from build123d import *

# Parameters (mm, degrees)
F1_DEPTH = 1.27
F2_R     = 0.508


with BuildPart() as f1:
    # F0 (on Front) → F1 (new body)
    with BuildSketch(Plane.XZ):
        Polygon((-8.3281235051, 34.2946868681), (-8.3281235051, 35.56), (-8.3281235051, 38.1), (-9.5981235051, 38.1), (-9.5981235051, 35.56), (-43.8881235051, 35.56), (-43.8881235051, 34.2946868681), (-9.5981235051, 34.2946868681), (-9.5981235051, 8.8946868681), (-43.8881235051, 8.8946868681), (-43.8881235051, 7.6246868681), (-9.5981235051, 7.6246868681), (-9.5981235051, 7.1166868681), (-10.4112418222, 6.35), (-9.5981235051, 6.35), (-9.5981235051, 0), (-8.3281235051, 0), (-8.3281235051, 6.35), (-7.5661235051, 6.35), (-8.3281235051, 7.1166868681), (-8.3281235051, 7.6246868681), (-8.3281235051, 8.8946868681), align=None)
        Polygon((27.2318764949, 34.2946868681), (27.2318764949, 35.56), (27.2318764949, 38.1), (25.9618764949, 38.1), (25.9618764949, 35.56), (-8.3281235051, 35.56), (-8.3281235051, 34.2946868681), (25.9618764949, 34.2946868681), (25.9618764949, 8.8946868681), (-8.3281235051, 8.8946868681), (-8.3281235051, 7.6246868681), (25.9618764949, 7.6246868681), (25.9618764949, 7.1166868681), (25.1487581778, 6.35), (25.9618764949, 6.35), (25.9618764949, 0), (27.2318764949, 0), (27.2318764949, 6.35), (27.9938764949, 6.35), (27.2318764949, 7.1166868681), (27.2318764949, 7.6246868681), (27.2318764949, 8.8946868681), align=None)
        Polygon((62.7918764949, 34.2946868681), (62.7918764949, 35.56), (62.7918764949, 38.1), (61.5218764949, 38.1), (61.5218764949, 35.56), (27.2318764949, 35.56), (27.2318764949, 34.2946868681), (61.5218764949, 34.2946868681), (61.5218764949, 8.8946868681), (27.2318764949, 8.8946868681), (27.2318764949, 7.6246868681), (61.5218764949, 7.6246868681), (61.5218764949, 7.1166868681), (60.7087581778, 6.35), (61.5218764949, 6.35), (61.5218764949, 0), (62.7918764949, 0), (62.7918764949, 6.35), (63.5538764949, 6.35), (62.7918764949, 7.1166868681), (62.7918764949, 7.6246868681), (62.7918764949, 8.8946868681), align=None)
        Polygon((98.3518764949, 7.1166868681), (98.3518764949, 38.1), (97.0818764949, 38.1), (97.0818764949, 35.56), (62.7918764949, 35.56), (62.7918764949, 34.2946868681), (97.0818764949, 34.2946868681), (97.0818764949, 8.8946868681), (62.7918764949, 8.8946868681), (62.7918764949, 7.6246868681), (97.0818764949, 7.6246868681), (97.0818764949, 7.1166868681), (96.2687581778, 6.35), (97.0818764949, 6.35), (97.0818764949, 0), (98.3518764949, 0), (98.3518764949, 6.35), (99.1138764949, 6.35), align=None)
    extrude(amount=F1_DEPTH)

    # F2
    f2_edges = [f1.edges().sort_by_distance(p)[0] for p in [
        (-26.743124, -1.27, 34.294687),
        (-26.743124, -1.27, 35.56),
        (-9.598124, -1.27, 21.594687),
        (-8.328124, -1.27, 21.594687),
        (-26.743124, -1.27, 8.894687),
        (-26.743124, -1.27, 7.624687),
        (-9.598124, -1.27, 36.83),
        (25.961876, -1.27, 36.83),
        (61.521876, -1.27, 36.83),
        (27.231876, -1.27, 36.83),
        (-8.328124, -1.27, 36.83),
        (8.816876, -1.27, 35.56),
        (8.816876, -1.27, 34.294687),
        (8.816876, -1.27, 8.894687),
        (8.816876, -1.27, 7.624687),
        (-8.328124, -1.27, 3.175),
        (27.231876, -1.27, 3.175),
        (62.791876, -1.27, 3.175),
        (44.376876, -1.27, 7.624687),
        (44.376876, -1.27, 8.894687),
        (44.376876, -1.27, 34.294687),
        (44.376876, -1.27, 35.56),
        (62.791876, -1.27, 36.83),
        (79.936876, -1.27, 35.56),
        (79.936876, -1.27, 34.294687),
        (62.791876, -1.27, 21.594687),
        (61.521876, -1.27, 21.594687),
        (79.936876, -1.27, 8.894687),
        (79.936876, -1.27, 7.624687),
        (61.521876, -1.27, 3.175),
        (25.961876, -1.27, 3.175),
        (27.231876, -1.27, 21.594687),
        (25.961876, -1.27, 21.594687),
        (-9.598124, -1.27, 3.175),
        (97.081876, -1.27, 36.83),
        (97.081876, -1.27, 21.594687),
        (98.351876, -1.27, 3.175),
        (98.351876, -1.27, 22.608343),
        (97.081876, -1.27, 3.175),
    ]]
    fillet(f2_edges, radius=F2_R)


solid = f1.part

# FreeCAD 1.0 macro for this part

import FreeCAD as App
import Part
import Sketcher
Q = App.Units.Quantity


def edges_at(feature, points):
    """Names of the edges that pass closest to the given points."""
    edges = feature.Shape.Edges
    near = lambda p: min(range(len(edges)), key=lambda i: edges[i].distToShape(Part.Vertex(*p))[0])
    return sorted({f"Edge{near(p) + 1}" for p in points})

doc = App.newDocument("Part")
body = doc.addObject("PartDesign::Body", "Body")

# Sketch on XZ plane
sketch1 = body.newObject("Sketcher::SketchObject", "Sketch")
sketch1.AttachmentSupport = (doc.getObject("XZ_Plane"), [""])
sketch1.MapMode = "FlatFace"
sketch1.addGeometry(Part.LineSegment(App.Vector(-8.3, 38.1, 0), App.Vector(-9.6, 38.1, 0)), False)
sketch1.addGeometry(Part.LineSegment(App.Vector(-9.6, 38.1, 0), App.Vector(-9.6, 35.6, 0)), False)
sketch1.addGeometry(Part.LineSegment(App.Vector(-9.6, 35.6, 0), App.Vector(-43.9, 35.6, 0)), False)
sketch1.addGeometry(Part.LineSegment(App.Vector(-43.9, 35.6, 0), App.Vector(-43.9, 34.3, 0)), False)
sketch1.addGeometry(Part.LineSegment(App.Vector(-43.9, 34.3, 0), App.Vector(-9.6, 34.3, 0)), False)
sketch1.addGeometry(Part.LineSegment(App.Vector(-9.6, 34.3, 0), App.Vector(-9.6, 8.9, 0)), False)
sketch1.addGeometry(Part.LineSegment(App.Vector(-9.6, 8.9, 0), App.Vector(-43.9, 8.9, 0)), False)
sketch1.addGeometry(Part.LineSegment(App.Vector(-43.9, 8.9, 0), App.Vector(-43.9, 7.6, 0)), False)
sketch1.addGeometry(Part.LineSegment(App.Vector(-43.9, 7.6, 0), App.Vector(-9.6, 7.6, 0)), False)
sketch1.addGeometry(Part.LineSegment(App.Vector(-9.6, 7.6, 0), App.Vector(-9.6, 7.1, 0)), False)
sketch1.addGeometry(Part.LineSegment(App.Vector(-9.6, 7.1, 0), App.Vector(-10.4, 6.3, 0)), False)
sketch1.addGeometry(Part.LineSegment(App.Vector(-10.4, 6.3, 0), App.Vector(-9.6, 6.3, 0)), False)
sketch1.addGeometry(Part.LineSegment(App.Vector(-9.6, 6.3, 0), App.Vector(-9.6, 0, 0)), False)
sketch1.addGeometry(Part.LineSegment(App.Vector(-9.6, 0, 0), App.Vector(-8.3, 0, 0)), False)
sketch1.addGeometry(Part.LineSegment(App.Vector(-8.3, 0, 0), App.Vector(-8.3, 6.3, 0)), False)
sketch1.addGeometry(Part.LineSegment(App.Vector(-8.3, 6.3, 0), App.Vector(-7.6, 6.3, 0)), False)
sketch1.addGeometry(Part.LineSegment(App.Vector(-7.6, 6.3, 0), App.Vector(-8.3, 7.1, 0)), False)
sketch1.addGeometry(Part.LineSegment(App.Vector(-8.3, 7.1, 0), App.Vector(-8.3, 7.6, 0)), False)
sketch1.addGeometry(Part.LineSegment(App.Vector(-8.3, 7.6, 0), App.Vector(26, 7.6, 0)), False)
sketch1.addGeometry(Part.LineSegment(App.Vector(26, 7.6, 0), App.Vector(26, 7.1, 0)), False)
sketch1.addGeometry(Part.LineSegment(App.Vector(26, 7.1, 0), App.Vector(25.1, 6.3, 0)), False)
sketch1.addGeometry(Part.LineSegment(App.Vector(25.1, 6.3, 0), App.Vector(26, 6.3, 0)), False)
sketch1.addGeometry(Part.LineSegment(App.Vector(26, 6.3, 0), App.Vector(26, 0, 0)), False)
sketch1.addGeometry(Part.LineSegment(App.Vector(26, 0, 0), App.Vector(27.2, 0, 0)), False)
sketch1.addGeometry(Part.LineSegment(App.Vector(27.2, 0, 0), App.Vector(27.2, 6.3, 0)), False)
sketch1.addGeometry(Part.LineSegment(App.Vector(27.2, 6.3, 0), App.Vector(28, 6.3, 0)), False)
sketch1.addGeometry(Part.LineSegment(App.Vector(28, 6.3, 0), App.Vector(27.2, 7.1, 0)), False)
sketch1.addGeometry(Part.LineSegment(App.Vector(27.2, 7.1, 0), App.Vector(27.2, 7.6, 0)), False)
sketch1.addGeometry(Part.LineSegment(App.Vector(27.2, 7.6, 0), App.Vector(61.5, 7.6, 0)), False)
sketch1.addGeometry(Part.LineSegment(App.Vector(61.5, 7.6, 0), App.Vector(61.5, 7.1, 0)), False)
sketch1.addGeometry(Part.LineSegment(App.Vector(61.5, 7.1, 0), App.Vector(60.7, 6.3, 0)), False)
sketch1.addGeometry(Part.LineSegment(App.Vector(60.7, 6.3, 0), App.Vector(61.5, 6.3, 0)), False)
sketch1.addGeometry(Part.LineSegment(App.Vector(61.5, 6.3, 0), App.Vector(61.5, 0, 0)), False)
sketch1.addGeometry(Part.LineSegment(App.Vector(61.5, 0, 0), App.Vector(62.8, 0, 0)), False)
sketch1.addGeometry(Part.LineSegment(App.Vector(62.8, 0, 0), App.Vector(62.8, 6.3, 0)), False)
sketch1.addGeometry(Part.LineSegment(App.Vector(62.8, 6.3, 0), App.Vector(63.6, 6.3, 0)), False)
sketch1.addGeometry(Part.LineSegment(App.Vector(63.6, 6.3, 0), App.Vector(62.8, 7.1, 0)), False)
sketch1.addGeometry(Part.LineSegment(App.Vector(62.8, 7.1, 0), App.Vector(62.8, 7.6, 0)), False)
sketch1.addGeometry(Part.LineSegment(App.Vector(62.8, 7.6, 0), App.Vector(97.1, 7.6, 0)), False)
sketch1.addGeometry(Part.LineSegment(App.Vector(97.1, 7.6, 0), App.Vector(97.1, 7.1, 0)), False)
sketch1.addGeometry(Part.LineSegment(App.Vector(97.1, 7.1, 0), App.Vector(96.3, 6.3, 0)), False)
sketch1.addGeometry(Part.LineSegment(App.Vector(96.3, 6.3, 0), App.Vector(97.1, 6.3, 0)), False)
sketch1.addGeometry(Part.LineSegment(App.Vector(97.1, 6.3, 0), App.Vector(97.1, 0, 0)), False)
sketch1.addGeometry(Part.LineSegment(App.Vector(97.1, 0, 0), App.Vector(98.4, 0, 0)), False)
sketch1.addGeometry(Part.LineSegment(App.Vector(98.4, 0, 0), App.Vector(98.4, 6.3, 0)), False)
sketch1.addGeometry(Part.LineSegment(App.Vector(98.4, 6.3, 0), App.Vector(99.1, 6.3, 0)), False)
sketch1.addGeometry(Part.LineSegment(App.Vector(99.1, 6.3, 0), App.Vector(98.4, 7.1, 0)), False)
sketch1.addGeometry(Part.LineSegment(App.Vector(98.4, 7.1, 0), App.Vector(98.4, 38.1, 0)), False)
sketch1.addGeometry(Part.LineSegment(App.Vector(98.4, 38.1, 0), App.Vector(97.1, 38.1, 0)), False)
sketch1.addGeometry(Part.LineSegment(App.Vector(97.1, 38.1, 0), App.Vector(97.1, 35.6, 0)), False)
sketch1.addGeometry(Part.LineSegment(App.Vector(97.1, 35.6, 0), App.Vector(62.8, 35.6, 0)), False)
sketch1.addGeometry(Part.LineSegment(App.Vector(62.8, 35.6, 0), App.Vector(62.8, 38.1, 0)), False)
sketch1.addGeometry(Part.LineSegment(App.Vector(62.8, 38.1, 0), App.Vector(61.5, 38.1, 0)), False)
sketch1.addGeometry(Part.LineSegment(App.Vector(61.5, 38.1, 0), App.Vector(61.5, 35.6, 0)), False)
sketch1.addGeometry(Part.LineSegment(App.Vector(61.5, 35.6, 0), App.Vector(27.2, 35.6, 0)), False)
sketch1.addGeometry(Part.LineSegment(App.Vector(27.2, 35.6, 0), App.Vector(27.2, 38.1, 0)), False)
sketch1.addGeometry(Part.LineSegment(App.Vector(27.2, 38.1, 0), App.Vector(26, 38.1, 0)), False)
sketch1.addGeometry(Part.LineSegment(App.Vector(26, 38.1, 0), App.Vector(26, 35.6, 0)), False)
sketch1.addGeometry(Part.LineSegment(App.Vector(26, 35.6, 0), App.Vector(-8.3, 35.6, 0)), False)
sketch1.addGeometry(Part.LineSegment(App.Vector(-8.3, 35.6, 0), App.Vector(-8.3, 38.1, 0)), False)
sketch1.addGeometry(Part.LineSegment(App.Vector(62.8, 8.9, 0), App.Vector(62.8, 34.3, 0)), False)
sketch1.addGeometry(Part.LineSegment(App.Vector(62.8, 34.3, 0), App.Vector(97.1, 34.3, 0)), False)
sketch1.addGeometry(Part.LineSegment(App.Vector(97.1, 34.3, 0), App.Vector(97.1, 8.9, 0)), False)
sketch1.addGeometry(Part.LineSegment(App.Vector(97.1, 8.9, 0), App.Vector(62.8, 8.9, 0)), False)
sketch1.addGeometry(Part.LineSegment(App.Vector(27.2, 8.9, 0), App.Vector(27.2, 34.3, 0)), False)
sketch1.addGeometry(Part.LineSegment(App.Vector(27.2, 34.3, 0), App.Vector(61.5, 34.3, 0)), False)
sketch1.addGeometry(Part.LineSegment(App.Vector(61.5, 34.3, 0), App.Vector(61.5, 8.9, 0)), False)
sketch1.addGeometry(Part.LineSegment(App.Vector(61.5, 8.9, 0), App.Vector(27.2, 8.9, 0)), False)
sketch1.addGeometry(Part.LineSegment(App.Vector(-8.3, 8.9, 0), App.Vector(-8.3, 34.3, 0)), False)
sketch1.addGeometry(Part.LineSegment(App.Vector(-8.3, 34.3, 0), App.Vector(26, 34.3, 0)), False)
sketch1.addGeometry(Part.LineSegment(App.Vector(26, 34.3, 0), App.Vector(26, 8.9, 0)), False)
sketch1.addGeometry(Part.LineSegment(App.Vector(26, 8.9, 0), App.Vector(-8.3, 8.9, 0)), False)
sketch1.addConstraint(Sketcher.Constraint("Coincident", 0, 2, 1, 1))
sketch1.addConstraint(Sketcher.Constraint("Coincident", 1, 2, 2, 1))
sketch1.addConstraint(Sketcher.Constraint("Coincident", 2, 2, 3, 1))
sketch1.addConstraint(Sketcher.Constraint("Coincident", 3, 2, 4, 1))
sketch1.addConstraint(Sketcher.Constraint("Coincident", 4, 2, 5, 1))
sketch1.addConstraint(Sketcher.Constraint("Coincident", 5, 2, 6, 1))
sketch1.addConstraint(Sketcher.Constraint("Coincident", 6, 2, 7, 1))
sketch1.addConstraint(Sketcher.Constraint("Coincident", 7, 2, 8, 1))
sketch1.addConstraint(Sketcher.Constraint("Coincident", 8, 2, 9, 1))
sketch1.addConstraint(Sketcher.Constraint("Coincident", 9, 2, 10, 1))
sketch1.addConstraint(Sketcher.Constraint("Coincident", 10, 2, 11, 1))
sketch1.addConstraint(Sketcher.Constraint("Coincident", 11, 2, 12, 1))
sketch1.addConstraint(Sketcher.Constraint("Coincident", 12, 2, 13, 1))
sketch1.addConstraint(Sketcher.Constraint("Coincident", 13, 2, 14, 1))
sketch1.addConstraint(Sketcher.Constraint("Coincident", 14, 2, 15, 1))
sketch1.addConstraint(Sketcher.Constraint("Coincident", 15, 2, 16, 1))
sketch1.addConstraint(Sketcher.Constraint("Coincident", 16, 2, 17, 1))
sketch1.addConstraint(Sketcher.Constraint("Coincident", 17, 2, 18, 1))
sketch1.addConstraint(Sketcher.Constraint("Coincident", 18, 2, 19, 1))
sketch1.addConstraint(Sketcher.Constraint("Coincident", 19, 2, 20, 1))
sketch1.addConstraint(Sketcher.Constraint("Coincident", 20, 2, 21, 1))
sketch1.addConstraint(Sketcher.Constraint("Coincident", 21, 2, 22, 1))
sketch1.addConstraint(Sketcher.Constraint("Coincident", 22, 2, 23, 1))
sketch1.addConstraint(Sketcher.Constraint("Coincident", 23, 2, 24, 1))
sketch1.addConstraint(Sketcher.Constraint("Coincident", 24, 2, 25, 1))
sketch1.addConstraint(Sketcher.Constraint("Coincident", 25, 2, 26, 1))
sketch1.addConstraint(Sketcher.Constraint("Coincident", 26, 2, 27, 1))
sketch1.addConstraint(Sketcher.Constraint("Coincident", 27, 2, 28, 1))
sketch1.addConstraint(Sketcher.Constraint("Coincident", 28, 2, 29, 1))
sketch1.addConstraint(Sketcher.Constraint("Coincident", 29, 2, 30, 1))
sketch1.addConstraint(Sketcher.Constraint("Coincident", 30, 2, 31, 1))
sketch1.addConstraint(Sketcher.Constraint("Coincident", 31, 2, 32, 1))
sketch1.addConstraint(Sketcher.Constraint("Coincident", 32, 2, 33, 1))
sketch1.addConstraint(Sketcher.Constraint("Coincident", 33, 2, 34, 1))
sketch1.addConstraint(Sketcher.Constraint("Coincident", 34, 2, 35, 1))
sketch1.addConstraint(Sketcher.Constraint("Coincident", 35, 2, 36, 1))
sketch1.addConstraint(Sketcher.Constraint("Coincident", 36, 2, 37, 1))
sketch1.addConstraint(Sketcher.Constraint("Coincident", 37, 2, 38, 1))
sketch1.addConstraint(Sketcher.Constraint("Coincident", 38, 2, 39, 1))
sketch1.addConstraint(Sketcher.Constraint("Coincident", 39, 2, 40, 1))
sketch1.addConstraint(Sketcher.Constraint("Coincident", 40, 2, 41, 1))
sketch1.addConstraint(Sketcher.Constraint("Coincident", 41, 2, 42, 1))
sketch1.addConstraint(Sketcher.Constraint("Coincident", 42, 2, 43, 1))
sketch1.addConstraint(Sketcher.Constraint("Coincident", 43, 2, 44, 1))
sketch1.addConstraint(Sketcher.Constraint("Coincident", 44, 2, 45, 1))
sketch1.addConstraint(Sketcher.Constraint("Coincident", 45, 2, 46, 1))
sketch1.addConstraint(Sketcher.Constraint("Coincident", 46, 2, 47, 1))
sketch1.addConstraint(Sketcher.Constraint("Coincident", 47, 2, 48, 1))
sketch1.addConstraint(Sketcher.Constraint("Coincident", 48, 2, 49, 1))
sketch1.addConstraint(Sketcher.Constraint("Coincident", 49, 2, 50, 1))
sketch1.addConstraint(Sketcher.Constraint("Coincident", 50, 2, 51, 1))
sketch1.addConstraint(Sketcher.Constraint("Coincident", 51, 2, 52, 1))
sketch1.addConstraint(Sketcher.Constraint("Coincident", 52, 2, 53, 1))
sketch1.addConstraint(Sketcher.Constraint("Coincident", 53, 2, 54, 1))
sketch1.addConstraint(Sketcher.Constraint("Coincident", 54, 2, 55, 1))
sketch1.addConstraint(Sketcher.Constraint("Coincident", 55, 2, 56, 1))
sketch1.addConstraint(Sketcher.Constraint("Coincident", 56, 2, 57, 1))
sketch1.addConstraint(Sketcher.Constraint("Coincident", 57, 2, 58, 1))
sketch1.addConstraint(Sketcher.Constraint("Coincident", 58, 2, 59, 1))
sketch1.addConstraint(Sketcher.Constraint("Coincident", 59, 2, 0, 1))
sketch1.addConstraint(Sketcher.Constraint("Coincident", 60, 2, 61, 1))
sketch1.addConstraint(Sketcher.Constraint("Coincident", 61, 2, 62, 1))
sketch1.addConstraint(Sketcher.Constraint("Coincident", 62, 2, 63, 1))
sketch1.addConstraint(Sketcher.Constraint("Coincident", 63, 2, 60, 1))
sketch1.addConstraint(Sketcher.Constraint("Coincident", 64, 2, 65, 1))
sketch1.addConstraint(Sketcher.Constraint("Coincident", 65, 2, 66, 1))
sketch1.addConstraint(Sketcher.Constraint("Coincident", 66, 2, 67, 1))
sketch1.addConstraint(Sketcher.Constraint("Coincident", 67, 2, 64, 1))
sketch1.addConstraint(Sketcher.Constraint("Coincident", 68, 2, 69, 1))
sketch1.addConstraint(Sketcher.Constraint("Coincident", 69, 2, 70, 1))
sketch1.addConstraint(Sketcher.Constraint("Coincident", 70, 2, 71, 1))
sketch1.addConstraint(Sketcher.Constraint("Coincident", 71, 2, 68, 1))
sketch1.addConstraint(Sketcher.Constraint("Horizontal", 0))
sketch1.addConstraint(Sketcher.Constraint("Vertical", 1))
sketch1.addConstraint(Sketcher.Constraint("Horizontal", 2))
sketch1.addConstraint(Sketcher.Constraint("Vertical", 3))
sketch1.addConstraint(Sketcher.Constraint("Horizontal", 4))
sketch1.addConstraint(Sketcher.Constraint("Vertical", 5))
sketch1.addConstraint(Sketcher.Constraint("Horizontal", 6))
sketch1.addConstraint(Sketcher.Constraint("Vertical", 7))
sketch1.addConstraint(Sketcher.Constraint("Horizontal", 8))
sketch1.addConstraint(Sketcher.Constraint("Vertical", 9))
sketch1.addConstraint(Sketcher.Constraint("Horizontal", 11))
sketch1.addConstraint(Sketcher.Constraint("Vertical", 12))
sketch1.addConstraint(Sketcher.Constraint("Horizontal", 13))
sketch1.addConstraint(Sketcher.Constraint("Vertical", 14))
sketch1.addConstraint(Sketcher.Constraint("Horizontal", 15))
sketch1.addConstraint(Sketcher.Constraint("Vertical", 17))
sketch1.addConstraint(Sketcher.Constraint("Horizontal", 18))
sketch1.addConstraint(Sketcher.Constraint("Vertical", 19))
sketch1.addConstraint(Sketcher.Constraint("Horizontal", 21))
sketch1.addConstraint(Sketcher.Constraint("Vertical", 22))
sketch1.addConstraint(Sketcher.Constraint("Horizontal", 23))
sketch1.addConstraint(Sketcher.Constraint("Vertical", 24))
sketch1.addConstraint(Sketcher.Constraint("Horizontal", 25))
sketch1.addConstraint(Sketcher.Constraint("Vertical", 27))
sketch1.addConstraint(Sketcher.Constraint("Horizontal", 28))
sketch1.addConstraint(Sketcher.Constraint("Vertical", 29))
sketch1.addConstraint(Sketcher.Constraint("Horizontal", 31))
sketch1.addConstraint(Sketcher.Constraint("Vertical", 32))
sketch1.addConstraint(Sketcher.Constraint("Horizontal", 33))
sketch1.addConstraint(Sketcher.Constraint("Vertical", 34))
sketch1.addConstraint(Sketcher.Constraint("Horizontal", 35))
sketch1.addConstraint(Sketcher.Constraint("Vertical", 37))
sketch1.addConstraint(Sketcher.Constraint("Horizontal", 38))
sketch1.addConstraint(Sketcher.Constraint("Vertical", 39))
sketch1.addConstraint(Sketcher.Constraint("Horizontal", 41))
sketch1.addConstraint(Sketcher.Constraint("Vertical", 42))
sketch1.addConstraint(Sketcher.Constraint("Horizontal", 43))
sketch1.addConstraint(Sketcher.Constraint("Vertical", 44))
sketch1.addConstraint(Sketcher.Constraint("Horizontal", 45))
sketch1.addConstraint(Sketcher.Constraint("Vertical", 47))
sketch1.addConstraint(Sketcher.Constraint("Horizontal", 48))
sketch1.addConstraint(Sketcher.Constraint("Vertical", 49))
sketch1.addConstraint(Sketcher.Constraint("Horizontal", 50))
sketch1.addConstraint(Sketcher.Constraint("Vertical", 51))
sketch1.addConstraint(Sketcher.Constraint("Horizontal", 52))
sketch1.addConstraint(Sketcher.Constraint("Vertical", 53))
sketch1.addConstraint(Sketcher.Constraint("Horizontal", 54))
sketch1.addConstraint(Sketcher.Constraint("Vertical", 55))
sketch1.addConstraint(Sketcher.Constraint("Horizontal", 56))
sketch1.addConstraint(Sketcher.Constraint("Vertical", 57))
sketch1.addConstraint(Sketcher.Constraint("Horizontal", 58))
sketch1.addConstraint(Sketcher.Constraint("Vertical", 59))
sketch1.addConstraint(Sketcher.Constraint("Vertical", 60))
sketch1.addConstraint(Sketcher.Constraint("Horizontal", 61))
sketch1.addConstraint(Sketcher.Constraint("Vertical", 62))
sketch1.addConstraint(Sketcher.Constraint("Horizontal", 63))
sketch1.addConstraint(Sketcher.Constraint("Vertical", 64))
sketch1.addConstraint(Sketcher.Constraint("Horizontal", 65))
sketch1.addConstraint(Sketcher.Constraint("Vertical", 66))
sketch1.addConstraint(Sketcher.Constraint("Horizontal", 67))
sketch1.addConstraint(Sketcher.Constraint("Vertical", 68))
sketch1.addConstraint(Sketcher.Constraint("Horizontal", 69))
sketch1.addConstraint(Sketcher.Constraint("Vertical", 70))
sketch1.addConstraint(Sketcher.Constraint("Horizontal", 71))
sketch1.addConstraint(Sketcher.Constraint("PointOnObject", 12, 2, -1))
sketch1.addConstraint(Sketcher.Constraint("PointOnObject", 22, 2, -1))
sketch1.addConstraint(Sketcher.Constraint("PointOnObject", 32, 2, -1))
sketch1.addConstraint(Sketcher.Constraint("PointOnObject", 42, 2, -1))
sketch1.addConstraint(Sketcher.Constraint("Parallel", 10, 20))
sketch1.addConstraint(Sketcher.Constraint("Parallel", 16, 26))
sketch1.addConstraint(Sketcher.Constraint("Parallel", 20, 30))
sketch1.addConstraint(Sketcher.Constraint("Parallel", 26, 36))
sketch1.addConstraint(Sketcher.Constraint("Parallel", 30, 40))
sketch1.addConstraint(Sketcher.Constraint("Parallel", 36, 46))
sketch1.addConstraint(Sketcher.Constraint("Horizontal", 11, 2, 14, 2))
sketch1.addConstraint(Sketcher.Constraint("Horizontal", 9, 2, 16, 2))
sketch1.addConstraint(Sketcher.Constraint("Horizontal", 8, 2, 17, 2))
sketch1.addConstraint(Sketcher.Constraint("Horizontal", 16, 2, 19, 2))
sketch1.addConstraint(Sketcher.Constraint("Horizontal", 15, 2, 20, 2))
sketch1.addConstraint(Sketcher.Constraint("Horizontal", 21, 2, 24, 2))
sketch1.addConstraint(Sketcher.Constraint("Horizontal", 19, 2, 26, 2))
sketch1.addConstraint(Sketcher.Constraint("Horizontal", 18, 2, 27, 2))
sketch1.addConstraint(Sketcher.Constraint("Horizontal", 26, 2, 29, 2))
sketch1.addConstraint(Sketcher.Constraint("Horizontal", 25, 2, 30, 2))
sketch1.addConstraint(Sketcher.Constraint("Horizontal", 31, 2, 34, 2))
sketch1.addConstraint(Sketcher.Constraint("Horizontal", 29, 2, 36, 2))
sketch1.addConstraint(Sketcher.Constraint("Horizontal", 28, 2, 37, 2))
sketch1.addConstraint(Sketcher.Constraint("Horizontal", 36, 2, 39, 2))
sketch1.addConstraint(Sketcher.Constraint("Horizontal", 35, 2, 40, 2))
sketch1.addConstraint(Sketcher.Constraint("Horizontal", 41, 2, 44, 2))
sketch1.addConstraint(Sketcher.Constraint("Horizontal", 39, 2, 46, 2))
sketch1.addConstraint(Sketcher.Constraint("Horizontal", 0, 2, 47, 2))
sketch1.addConstraint(Sketcher.Constraint("Horizontal", 2, 2, 49, 2))
sketch1.addConstraint(Sketcher.Constraint("Horizontal", 48, 2, 51, 2))
sketch1.addConstraint(Sketcher.Constraint("Horizontal", 50, 2, 53, 2))
sketch1.addConstraint(Sketcher.Constraint("Horizontal", 52, 2, 55, 2))
sketch1.addConstraint(Sketcher.Constraint("Horizontal", 54, 2, 57, 2))
sketch1.addConstraint(Sketcher.Constraint("Horizontal", 4, 2, 60, 2))
sketch1.addConstraint(Sketcher.Constraint("Horizontal", 6, 2, 62, 2))
sketch1.addConstraint(Sketcher.Constraint("Horizontal", 61, 2, 64, 2))
sketch1.addConstraint(Sketcher.Constraint("Horizontal", 63, 2, 66, 2))
sketch1.addConstraint(Sketcher.Constraint("Horizontal", 65, 2, 68, 2))
sketch1.addConstraint(Sketcher.Constraint("Horizontal", 67, 2, 70, 2))
sketch1.addConstraint(Sketcher.Constraint("Vertical", 1, 2, 4, 2))
sketch1.addConstraint(Sketcher.Constraint("Vertical", 3, 2, 6, 2))
sketch1.addConstraint(Sketcher.Constraint("Vertical", 5, 2, 8, 2))
sketch1.addConstraint(Sketcher.Constraint("Vertical", 9, 2, 11, 2))
sketch1.addConstraint(Sketcher.Constraint("Vertical", 14, 2, 16, 2))
sketch1.addConstraint(Sketcher.Constraint("Vertical", 19, 2, 21, 2))
sketch1.addConstraint(Sketcher.Constraint("Vertical", 24, 2, 26, 2))
sketch1.addConstraint(Sketcher.Constraint("Vertical", 29, 2, 31, 2))
sketch1.addConstraint(Sketcher.Constraint("Vertical", 34, 2, 36, 2))
sketch1.addConstraint(Sketcher.Constraint("Vertical", 39, 2, 41, 2))
sketch1.addConstraint(Sketcher.Constraint("Vertical", 44, 2, 46, 2))
sketch1.addConstraint(Sketcher.Constraint("Vertical", 42, 2, 48, 2))
sketch1.addConstraint(Sketcher.Constraint("Vertical", 37, 2, 50, 2))
sketch1.addConstraint(Sketcher.Constraint("Vertical", 32, 2, 52, 2))
sketch1.addConstraint(Sketcher.Constraint("Vertical", 27, 2, 54, 2))
sketch1.addConstraint(Sketcher.Constraint("Vertical", 22, 2, 56, 2))
sketch1.addConstraint(Sketcher.Constraint("Vertical", 17, 2, 58, 2))
sketch1.addConstraint(Sketcher.Constraint("Vertical", 51, 2, 60, 2))
sketch1.addConstraint(Sketcher.Constraint("Vertical", 49, 2, 61, 2))
sketch1.addConstraint(Sketcher.Constraint("Vertical", 55, 2, 64, 2))
sketch1.addConstraint(Sketcher.Constraint("Vertical", 53, 2, 65, 2))
sketch1.addConstraint(Sketcher.Constraint("Vertical", 59, 2, 68, 2))
sketch1.addConstraint(Sketcher.Constraint("Vertical", 57, 2, 69, 2))
sketch1.addConstraint(Sketcher.Constraint("Equal", 8, 18))
sketch1.addConstraint(Sketcher.Constraint("Equal", 13, 23))
sketch1.addConstraint(Sketcher.Constraint("Equal", 18, 28))
sketch1.addConstraint(Sketcher.Constraint("Equal", 23, 33))
sketch1.addConstraint(Sketcher.Constraint("Equal", 28, 38))
sketch1.addConstraint(Sketcher.Constraint("Equal", 33, 43))
sketch1.addConstraint(Sketcher.Constraint("Equal", 56, 7))
sketch1.addConstraint(Sketcher.Constraint("DistanceY", 5, 2, 5, 1, Q("1 in")))
sketch1.addConstraint(Sketcher.Constraint("DistanceY", 1, 2, 1, 1, Q("0.1 in")))
sketch1.addConstraint(Sketcher.Constraint("DistanceX", 0, 2, 0, 1, Q("0.05 in")))
sketch1.addConstraint(Sketcher.Constraint("DistanceX", 2, 2, 2, 1, Q("1.35 in")))
sketch1.addConstraint(Sketcher.Constraint("DistanceX", 15, 1, 15, 2, Q("0.03 in")))
sketch1.addConstraint(Sketcher.Constraint("DistanceY", 9, 2, 9, 1, Q("0.02 in")))
sketch1.addConstraint(Sketcher.Constraint("DistanceY", 12, 2, 12, 1, Q("0.25 in")))
sketch1.addConstraint(Sketcher.Constraint("DistanceY", -1, 1, 0, 2, Q("1.5 in")))
sketch1.addConstraint(Sketcher.Constraint("DistanceX", 11, 1, 11, 2, Q("0.813118 mm")))
sketch1.addConstraint(Sketcher.Constraint("Distance", 16, Q("1.08095 mm")))
sketch1.addConstraint(Sketcher.Constraint("DistanceX", 10, 2, -1, 1, Q("10.411242 mm")))
pad1 = body.newObject("PartDesign::Pad", "Pad")
pad1.Profile = sketch1
pad1.Length = Q("0.05 in")
doc.recompute()

fillet = body.newObject("PartDesign::Fillet", "Fillet")
fillet.Base = (pad1, edges_at(pad1, [
    (-26.743, -1.27, 34.295),
    (-26.743, -1.27, 35.56),
    (-9.598, -1.27, 21.595),
    (-8.328, -1.27, 21.595),
    (-26.743, -1.27, 8.895),
    (-26.743, -1.27, 7.625),
    (-9.598, -1.27, 36.83),
    (25.962, -1.27, 36.83),
    (61.522, -1.27, 36.83),
    (27.232, -1.27, 36.83),
    (-8.328, -1.27, 36.83),
    (8.817, -1.27, 35.56),
    (8.817, -1.27, 34.295),
    (8.817, -1.27, 8.895),
    (8.817, -1.27, 7.625),
    (-8.328, -1.27, 3.175),
    (27.232, -1.27, 3.175),
    (62.792, -1.27, 3.175),
    (44.377, -1.27, 7.625),
    (44.377, -1.27, 8.895),
    (44.377, -1.27, 34.295),
    (44.377, -1.27, 35.56),
    (62.792, -1.27, 36.83),
    (79.937, -1.27, 35.56),
    (79.937, -1.27, 34.295),
    (62.792, -1.27, 21.595),
    (61.522, -1.27, 21.595),
    (79.937, -1.27, 8.895),
    (79.937, -1.27, 7.625),
    (61.522, -1.27, 3.175),
    (25.962, -1.27, 3.175),
    (27.232, -1.27, 21.595),
    (25.962, -1.27, 21.595),
    (-9.598, -1.27, 3.175),
    (97.082, -1.27, 36.83),
    (97.082, -1.27, 21.595),
    (98.352, -1.27, 3.175),
    (98.352, -1.27, 22.608),
    (97.082, -1.27, 3.175),
]))
fillet.Radius = Q("0.02 in")

doc.recompute()
